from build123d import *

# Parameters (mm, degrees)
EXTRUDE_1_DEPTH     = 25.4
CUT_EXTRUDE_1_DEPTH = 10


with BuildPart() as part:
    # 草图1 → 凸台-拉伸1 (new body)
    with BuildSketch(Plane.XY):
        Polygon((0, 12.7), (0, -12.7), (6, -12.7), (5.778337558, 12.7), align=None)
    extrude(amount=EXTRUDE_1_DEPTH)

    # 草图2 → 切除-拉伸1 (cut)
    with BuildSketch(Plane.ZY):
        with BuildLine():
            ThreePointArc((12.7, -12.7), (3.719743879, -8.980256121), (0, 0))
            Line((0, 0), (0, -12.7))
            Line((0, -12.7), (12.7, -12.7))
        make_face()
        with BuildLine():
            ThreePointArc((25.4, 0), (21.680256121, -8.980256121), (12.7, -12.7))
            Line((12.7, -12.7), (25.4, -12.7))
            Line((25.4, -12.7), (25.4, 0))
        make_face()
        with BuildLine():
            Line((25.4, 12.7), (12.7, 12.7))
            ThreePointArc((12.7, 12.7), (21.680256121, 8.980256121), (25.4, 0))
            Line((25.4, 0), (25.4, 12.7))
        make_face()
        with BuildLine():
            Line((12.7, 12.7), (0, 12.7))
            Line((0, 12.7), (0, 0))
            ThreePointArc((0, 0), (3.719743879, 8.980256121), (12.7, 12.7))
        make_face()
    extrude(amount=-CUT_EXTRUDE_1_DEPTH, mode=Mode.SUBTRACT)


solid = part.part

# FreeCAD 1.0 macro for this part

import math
import FreeCAD as App
import Part
import Sketcher
Q = App.Units.Quantity


def add_polygon(sketch, points):
    """Adds a closed chain of lines whose ends are joined by coincident constraints."""
    first, n = sketch.GeometryCount, len(points)
    for a, b in zip(points, points[1:] + points[:1]):
        sketch.addGeometry(Part.LineSegment(App.Vector(*a, 0), App.Vector(*b, 0)), False)
    for i in range(n):
        sketch.addConstraint(Sketcher.Constraint("Coincident", first + i, 2, first + (i + 1) % n, 1))

doc = App.newDocument("Part")
body = doc.addObject("PartDesign::Body", "Body")

sketch1 = doc.addObject("Sketcher::SketchObject", "Sketch")
body.addObject(sketch1)
sketch1.AttachmentSupport = (doc.XY_Plane, [""])
sketch1.MapMode = "FlatFace"
add_polygon(sketch1, [(0, 13), (0, -13), (6, -13), (6, 13)])
sketch1.addConstraint([
    Sketcher.Constraint("Vertical", 0),
    Sketcher.Constraint("Horizontal", 1),
    Sketcher.Constraint("Horizontal", 3),
    Sketcher.Constraint("Symmetric", 0, 2, 3, 2, -1, 1),
    Sketcher.Constraint("DistanceX", 1, 1, 1, 2, Q("6 mm")),
    Sketcher.Constraint("DistanceY", 0, 2, 0, 1, Q("25.4 mm")),
    Sketcher.Constraint("Angle", 2, Q("90.5 deg")),
])
pad1 = doc.addObject("PartDesign::Pad", "Pad")
body.addObject(pad1)
pad1.Profile = sketch1
pad1.Length = 25.4

sketch2 = doc.addObject("Sketcher::SketchObject", "Sketch001")
body.addObject(sketch2)
sketch2.AttachmentSupport = (doc.YZ_Plane, [""])
sketch2.MapMode = "FlatFace"
sketch2.addGeometry([
    Part.ArcOfCircle(Part.Circle(App.Vector(0, 13, 0), App.Vector(0, 0, 1), 13), math.radians(180), math.radians(270)),
    Part.LineSegment(App.Vector(0, 0, 0), App.Vector(-13, 0, 0)),
    Part.LineSegment(App.Vector(-13, 0, 0), App.Vector(-13, 13, 0)),
    Part.ArcOfCircle(Part.Circle(App.Vector(0, 13, 0), App.Vector(0, 0, 1), 13), math.radians(90), math.radians(180)),
    Part.LineSegment(App.Vector(-13, 13, 0), App.Vector(-13, 25, 0)),
    Part.LineSegment(App.Vector(-13, 25, 0), App.Vector(0, 25, 0)),
    Part.LineSegment(App.Vector(13, 25, 0), App.Vector(13, 13, 0)),
    Part.ArcOfCircle(Part.Circle(App.Vector(0, 13, 0), App.Vector(0, 0, 1), 13), math.radians(0), math.radians(90)),
    Part.LineSegment(App.Vector(0, 25, 0), App.Vector(13, 25, 0)),
    Part.LineSegment(App.Vector(13, 13, 0), App.Vector(13, 0, 0)),
    Part.LineSegment(App.Vector(13, 0, 0), App.Vector(0, 0, 0)),
    Part.ArcOfCircle(Part.Circle(App.Vector(0, 13, 0), App.Vector(0, 0, 1), 13), math.radians(-90), math.radians(0)),
], False)
sketch2.addConstraint([
    Sketcher.Constraint("Tangent", 0, 2, 1, 1),
    Sketcher.Constraint("Coincident", 1, 2, 2, 1),
    Sketcher.Constraint("Tangent", 2, 2, 0, 1),
    Sketcher.Constraint("Tangent", 3, 2, 4, 1),
    Sketcher.Constraint("Coincident", 4, 2, 5, 1),
    Sketcher.Constraint("Tangent", 5, 2, 3, 1),
    Sketcher.Constraint("Tangent", 6, 2, 7, 1),
    Sketcher.Constraint("Tangent", 7, 2, 8, 1),
    Sketcher.Constraint("Coincident", 8, 2, 6, 1),
    Sketcher.Constraint("Coincident", 9, 2, 10, 1),
    Sketcher.Constraint("Tangent", 10, 2, 11, 1),
    Sketcher.Constraint("Tangent", 11, 2, 9, 1),
    Sketcher.Constraint("Horizontal", 1),
    Sketcher.Constraint("Vertical", 2),
    Sketcher.Constraint("Vertical", 4),
    Sketcher.Constraint("Horizontal", 5),
    Sketcher.Constraint("Vertical", 6),
    Sketcher.Constraint("Horizontal", 8),
    Sketcher.Constraint("Vertical", 9),
    Sketcher.Constraint("Horizontal", 10),
    Sketcher.Constraint("Coincident", 0, 2, -1, 1),
    Sketcher.Constraint("Coincident", 10, 2, -1, 1),
    Sketcher.Constraint("Coincident", 3, 3, 0, 3),
    Sketcher.Constraint("Coincident", 7, 3, 0, 3),
    Sketcher.Constraint("Coincident", 11, 2, 6, 2),
    Sketcher.Constraint("Equal", 0, 3),
    Sketcher.Constraint("Radius", 0, Q("12.7 mm")),
])
pocket1 = doc.addObject("PartDesign::Pocket", "Pocket")
body.addObject(pocket1)
pocket1.Profile = sketch2
pocket1.Length = 10
pocket1.Reversed = True

doc.recompute()
